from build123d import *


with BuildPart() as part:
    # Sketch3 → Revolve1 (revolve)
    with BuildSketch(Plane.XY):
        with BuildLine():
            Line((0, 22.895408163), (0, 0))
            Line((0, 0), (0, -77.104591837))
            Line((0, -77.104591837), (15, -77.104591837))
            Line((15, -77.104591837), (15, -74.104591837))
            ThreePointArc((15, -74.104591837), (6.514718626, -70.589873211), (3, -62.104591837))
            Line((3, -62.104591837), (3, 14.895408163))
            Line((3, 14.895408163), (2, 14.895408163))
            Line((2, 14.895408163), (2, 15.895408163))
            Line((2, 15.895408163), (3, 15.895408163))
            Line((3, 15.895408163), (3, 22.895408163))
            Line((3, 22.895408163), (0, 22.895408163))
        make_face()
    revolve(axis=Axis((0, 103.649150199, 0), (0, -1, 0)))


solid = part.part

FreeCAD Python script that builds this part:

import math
import FreeCAD as App
import Part
import Sketcher

V = App.Vector
Q = App.Units.Quantity

doc = App.newDocument("Part")
body = doc.addObject("PartDesign::Body", "Body")

# Sketch on XY plane
sketch1 = doc.addObject("Sketcher::SketchObject", "Sketch")
body.addObject(sketch1)
sketch1.AttachmentSupport = (doc.XY_Plane, [""])
sketch1.MapMode = "FlatFace"
sketch1.addGeometry([
    Part.LineSegment(V(0, 22.895408, 0), V(0, -77.104592, 0)),  # 0
    Part.LineSegment(V(0, -77.104592, 0), V(15, -77.104592, 0)),  # 1
    Part.LineSegment(V(15, -77.104592, 0), V(15, -74.104592, 0)),  # 2
    Part.ArcOfCircle(Part.Circle(V(15, -62.104592, 0), V(0, 0, 1), 12), math.radians(-180), math.radians(-90)),  # 3
    Part.LineSegment(V(3, -62.104592, 0), V(3, 14.895408, 0)),  # 4
    Part.LineSegment(V(3, 14.895408, 0), V(2, 14.895408, 0)),  # 5
    Part.LineSegment(V(2, 14.895408, 0), V(2, 15.895408, 0)),  # 6
    Part.LineSegment(V(2, 15.895408, 0), V(3, 15.895408, 0)),  # 7
    Part.LineSegment(V(3, 15.895408, 0), V(3, 22.895408, 0)),  # 8
    Part.LineSegment(V(3, 22.895408, 0), V(0, 22.895408, 0)),  # 9
], False)
sketch1.addConstraint([
    Sketcher.Constraint("Coincident", 0, 2, 1, 1),
    Sketcher.Constraint("Coincident", 1, 2, 2, 1),
    Sketcher.Constraint("Coincident", 2, 2, 3, 2),
    Sketcher.Constraint("Tangent", 3, 1, 4, 1),
    Sketcher.Constraint("Coincident", 4, 2, 5, 1),
    Sketcher.Constraint("Coincident", 5, 2, 6, 1),
    Sketcher.Constraint("Coincident", 6, 2, 7, 1),
    Sketcher.Constraint("Coincident", 7, 2, 8, 1),
    Sketcher.Constraint("Coincident", 8, 2, 9, 1),
    Sketcher.Constraint("Coincident", 9, 2, 0, 1),
    Sketcher.Constraint("Vertical", 0),
    Sketcher.Constraint("Horizontal", 1),
    Sketcher.Constraint("Vertical", 2),
    Sketcher.Constraint("Vertical", 4),
    Sketcher.Constraint("Horizontal", 5),
    Sketcher.Constraint("Vertical", 6),
    Sketcher.Constraint("Horizontal", 7),
    Sketcher.Constraint("Vertical", 8),
    Sketcher.Constraint("Horizontal", 9),
    Sketcher.Constraint("PointOnObject", 0, 2, -2),
    Sketcher.Constraint("Vertical", 3, 3, 1, 2),
    Sketcher.Constraint("Vertical", 4, 2, 7, 2),
    Sketcher.Constraint("Equal", 9, 2),
    Sketcher.Constraint("Equal", 7, 6),
    Sketcher.Constraint("Radius", 3, Q("12 mm")),
    Sketcher.Constraint("DistanceX", 1, 1, 1, 2, Q("15 mm")),
    Sketcher.Constraint("DistanceX", 5, 2, 5, 1, Q("1 mm")),
    Sketcher.Constraint("DistanceY", 0, 2, 0, 1, Q("100 mm")),
    Sketcher.Constraint("DistanceY", 4, 1, 4, 2, Q("77 mm")),
    Sketcher.Constraint("DistanceY", 3, 3, -1, 1, Q("62.104592 mm")),
])
revolution = doc.addObject("PartDesign::Revolution", "Revolution")
body.addObject(revolution)
revolution.Profile = sketch1
revolution.ReferenceAxis = (sketch1, ["V_Axis"])
revolution.Angle = 360

doc.recompute()
